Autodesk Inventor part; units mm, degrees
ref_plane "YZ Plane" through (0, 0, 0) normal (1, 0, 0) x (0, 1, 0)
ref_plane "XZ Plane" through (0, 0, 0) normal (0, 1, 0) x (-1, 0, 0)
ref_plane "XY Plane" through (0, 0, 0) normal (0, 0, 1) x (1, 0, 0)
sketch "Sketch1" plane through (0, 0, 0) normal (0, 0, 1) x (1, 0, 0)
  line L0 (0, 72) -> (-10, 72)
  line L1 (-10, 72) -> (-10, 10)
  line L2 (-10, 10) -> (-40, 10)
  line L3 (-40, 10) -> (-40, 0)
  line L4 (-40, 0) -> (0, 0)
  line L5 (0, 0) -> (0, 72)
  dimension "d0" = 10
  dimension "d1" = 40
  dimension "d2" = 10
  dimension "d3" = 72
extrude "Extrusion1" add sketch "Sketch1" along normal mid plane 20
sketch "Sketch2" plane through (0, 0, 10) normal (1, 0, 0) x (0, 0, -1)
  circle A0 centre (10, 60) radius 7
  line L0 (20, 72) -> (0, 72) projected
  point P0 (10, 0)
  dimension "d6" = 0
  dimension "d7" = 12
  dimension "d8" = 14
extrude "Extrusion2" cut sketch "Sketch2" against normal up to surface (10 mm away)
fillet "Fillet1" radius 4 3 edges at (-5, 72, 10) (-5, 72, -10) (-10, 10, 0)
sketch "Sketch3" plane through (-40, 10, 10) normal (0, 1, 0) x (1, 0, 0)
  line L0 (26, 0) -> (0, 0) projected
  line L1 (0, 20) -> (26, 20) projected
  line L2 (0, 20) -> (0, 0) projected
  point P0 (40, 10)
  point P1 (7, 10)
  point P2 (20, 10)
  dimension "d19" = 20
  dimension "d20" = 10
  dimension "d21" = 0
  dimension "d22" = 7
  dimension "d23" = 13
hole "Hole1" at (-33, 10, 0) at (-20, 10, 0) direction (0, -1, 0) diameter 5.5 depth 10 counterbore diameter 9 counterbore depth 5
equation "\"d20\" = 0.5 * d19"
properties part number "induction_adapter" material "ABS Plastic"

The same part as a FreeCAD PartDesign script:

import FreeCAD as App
import Part
import Sketcher

V = App.Vector
Q = App.Units.Quantity


def edges_at(feature, points):
    """Names of the edges that pass closest to the given points."""
    edges = feature.Shape.Edges
    near = lambda p: min(range(len(edges)), key=lambda i: edges[i].distToShape(Part.Vertex(*p))[0])
    return sorted({f"Edge{near(p) + 1}" for p in points})

doc = App.newDocument("Part")
params = doc.addObject("Spreadsheet::Sheet", "Params")
for row, (alias, value) in enumerate([
    ("sketch1_width", "10 mm"),
    ("sketch1_width2", "40 mm"),
    ("sketch1_height", "72 mm"),
    ("pad1_length", "20 mm"),
    ("sketch2_diameter", "14 mm"),
    ("pocket1_length", "10 mm"),
    ("fillet_radius", "4 mm"),
    ("sketch3_diameter", "5.5 mm"),
    ("hole_diameter", "5.5 mm"),
    ("hole_depth", "10 mm"),
    ("hole_cbore_diameter", "9 mm"),
    ("hole_cbore_depth", "5 mm"),
], start=1):
    params.set(f"A{row}", alias)
    params.set(f"B{row}", "=" + value)
    params.setAlias(f"B{row}", alias)

body = doc.addObject("PartDesign::Body", "Body")

# Sketch on XY plane
sketch1 = body.newObject("Sketcher::SketchObject", "Sketch")
sketch1.AttachmentSupport = (doc.getObject("XY_Plane"), [""])
sketch1.MapMode = "FlatFace"
sketch1.addGeometry([
    Part.LineSegment(V(0, 0, 0), V(0, 72, 0)),  # 0
    Part.LineSegment(V(0, 72, 0), V(-10, 72, 0)),  # 1
    Part.LineSegment(V(-10, 72, 0), V(-10, 10, 0)),  # 2
    Part.LineSegment(V(-10, 10, 0), V(-40, 10, 0)),  # 3
    Part.LineSegment(V(-40, 10, 0), V(-40, 0, 0)),  # 4
    Part.LineSegment(V(-40, 0, 0), V(0, 0, 0)),  # 5
], False)
sketch1.addConstraint([
    Sketcher.Constraint("Coincident", 0, 2, 1, 1),
    Sketcher.Constraint("Coincident", 1, 2, 2, 1),
    Sketcher.Constraint("Coincident", 2, 2, 3, 1),
    Sketcher.Constraint("Coincident", 3, 2, 4, 1),
    Sketcher.Constraint("Coincident", 4, 2, 5, 1),
    Sketcher.Constraint("Coincident", 5, 2, 0, 1),
    Sketcher.Constraint("Vertical", 0),
    Sketcher.Constraint("Horizontal", 1),
    Sketcher.Constraint("Vertical", 2),
    Sketcher.Constraint("Horizontal", 3),
    Sketcher.Constraint("Vertical", 4),
    Sketcher.Constraint("Horizontal", 5),
    Sketcher.Constraint("Coincident", 5, 2, -1, 1),
    Sketcher.Constraint("Equal", 1, 4),
    Sketcher.Constraint("DistanceX", 1, 2, 1, 1, Q("10 mm")),
    Sketcher.Constraint("DistanceX", 5, 1, 5, 2, Q("40 mm")),
    Sketcher.Constraint("DistanceY", 0, 1, 0, 2, Q("72 mm")),
])
sketch1.setExpression("Constraints[14]", "Params.sketch1_width")
sketch1.setExpression("Constraints[15]", "Params.sketch1_width2")
sketch1.setExpression("Constraints[16]", "Params.sketch1_height")
pad1 = body.newObject("PartDesign::Pad", "Pad")
pad1.Profile = sketch1
pad1.setExpression("Length", "Params.pad1_length")
pad1.Midplane = True

# Sketch on YZ plane
sketch2 = body.newObject("Sketcher::SketchObject", "Sketch001")
sketch2.AttachmentSupport = (doc.getObject("YZ_Plane"), [""])
sketch2.MapMode = "FlatFace"
sketch2.addGeometry(Part.Circle(V(60, 0, 0), V(0, 0, 1), 7), False)
sketch2.addConstraint([
    Sketcher.Constraint("PointOnObject", 0, 3, -1),
    Sketcher.Constraint("Diameter", 0, Q("14 mm")),
    Sketcher.Constraint("DistanceX", -1, 1, 0, 3, Q("60 mm")),
])
sketch2.setExpression("Constraints[1]", "Params.sketch2_diameter")
pocket1 = body.newObject("PartDesign::Pocket", "Pocket")
pocket1.Profile = sketch2
pocket1.setExpression("Length", "Params.pocket1_length")
doc.recompute()

fillet = body.newObject("PartDesign::Fillet", "Fillet")
fillet.Base = (pocket1, edges_at(pocket1, [(-5, 72, 10), (-5, 72, -10), (-10, 10, 0)]))
fillet.setExpression("Radius", "Params.fillet_radius")

# Sketch on XZ plane
sketch3 = body.newObject("Sketcher::SketchObject", "Sketch002")
sketch3.AttachmentSupport = (doc.getObject("XZ_Plane"), [""])
sketch3.MapMode = "FlatFace"
sketch3.AttachmentOffset = App.Placement(V(0, 0, -10), App.Rotation())
sketch3.addGeometry([
    Part.Circle(V(-33, 0, 0), V(0, 0, 1), 2.8),
    Part.Circle(V(-20, 0, 0), V(0, 0, 1), 2.8),
], False)
sketch3.addConstraint([
    Sketcher.Constraint("Equal", 0, 1),
    Sketcher.Constraint("PointOnObject", 0, 3, -1),
    Sketcher.Constraint("PointOnObject", 1, 3, -1),
    Sketcher.Constraint("Diameter", 0, Q("5.5 mm")),
    Sketcher.Constraint("DistanceX", 0, 3, -1, 1, Q("33 mm")),
    Sketcher.Constraint("DistanceX", 1, 3, -1, 1, Q("20 mm")),
])
sketch3.setExpression("Constraints[3]", "Params.sketch3_diameter")
doc.recompute()
hole = body.newObject("PartDesign::Hole", "Hole")
hole.Profile = sketch3
hole.ThreadType = "None"
hole.setExpression("Diameter", "Params.hole_diameter")
hole.DepthType = "Dimension"
hole.setExpression("Depth", "Params.hole_depth")
hole.DrillPoint = "Flat"
hole.HoleCutType = "Counterbore"
hole.setExpression("HoleCutDiameter", "Params.hole_cbore_diameter")
hole.setExpression("HoleCutDepth", "Params.hole_cbore_depth")
hole.Reversed = True

doc.recompute()
